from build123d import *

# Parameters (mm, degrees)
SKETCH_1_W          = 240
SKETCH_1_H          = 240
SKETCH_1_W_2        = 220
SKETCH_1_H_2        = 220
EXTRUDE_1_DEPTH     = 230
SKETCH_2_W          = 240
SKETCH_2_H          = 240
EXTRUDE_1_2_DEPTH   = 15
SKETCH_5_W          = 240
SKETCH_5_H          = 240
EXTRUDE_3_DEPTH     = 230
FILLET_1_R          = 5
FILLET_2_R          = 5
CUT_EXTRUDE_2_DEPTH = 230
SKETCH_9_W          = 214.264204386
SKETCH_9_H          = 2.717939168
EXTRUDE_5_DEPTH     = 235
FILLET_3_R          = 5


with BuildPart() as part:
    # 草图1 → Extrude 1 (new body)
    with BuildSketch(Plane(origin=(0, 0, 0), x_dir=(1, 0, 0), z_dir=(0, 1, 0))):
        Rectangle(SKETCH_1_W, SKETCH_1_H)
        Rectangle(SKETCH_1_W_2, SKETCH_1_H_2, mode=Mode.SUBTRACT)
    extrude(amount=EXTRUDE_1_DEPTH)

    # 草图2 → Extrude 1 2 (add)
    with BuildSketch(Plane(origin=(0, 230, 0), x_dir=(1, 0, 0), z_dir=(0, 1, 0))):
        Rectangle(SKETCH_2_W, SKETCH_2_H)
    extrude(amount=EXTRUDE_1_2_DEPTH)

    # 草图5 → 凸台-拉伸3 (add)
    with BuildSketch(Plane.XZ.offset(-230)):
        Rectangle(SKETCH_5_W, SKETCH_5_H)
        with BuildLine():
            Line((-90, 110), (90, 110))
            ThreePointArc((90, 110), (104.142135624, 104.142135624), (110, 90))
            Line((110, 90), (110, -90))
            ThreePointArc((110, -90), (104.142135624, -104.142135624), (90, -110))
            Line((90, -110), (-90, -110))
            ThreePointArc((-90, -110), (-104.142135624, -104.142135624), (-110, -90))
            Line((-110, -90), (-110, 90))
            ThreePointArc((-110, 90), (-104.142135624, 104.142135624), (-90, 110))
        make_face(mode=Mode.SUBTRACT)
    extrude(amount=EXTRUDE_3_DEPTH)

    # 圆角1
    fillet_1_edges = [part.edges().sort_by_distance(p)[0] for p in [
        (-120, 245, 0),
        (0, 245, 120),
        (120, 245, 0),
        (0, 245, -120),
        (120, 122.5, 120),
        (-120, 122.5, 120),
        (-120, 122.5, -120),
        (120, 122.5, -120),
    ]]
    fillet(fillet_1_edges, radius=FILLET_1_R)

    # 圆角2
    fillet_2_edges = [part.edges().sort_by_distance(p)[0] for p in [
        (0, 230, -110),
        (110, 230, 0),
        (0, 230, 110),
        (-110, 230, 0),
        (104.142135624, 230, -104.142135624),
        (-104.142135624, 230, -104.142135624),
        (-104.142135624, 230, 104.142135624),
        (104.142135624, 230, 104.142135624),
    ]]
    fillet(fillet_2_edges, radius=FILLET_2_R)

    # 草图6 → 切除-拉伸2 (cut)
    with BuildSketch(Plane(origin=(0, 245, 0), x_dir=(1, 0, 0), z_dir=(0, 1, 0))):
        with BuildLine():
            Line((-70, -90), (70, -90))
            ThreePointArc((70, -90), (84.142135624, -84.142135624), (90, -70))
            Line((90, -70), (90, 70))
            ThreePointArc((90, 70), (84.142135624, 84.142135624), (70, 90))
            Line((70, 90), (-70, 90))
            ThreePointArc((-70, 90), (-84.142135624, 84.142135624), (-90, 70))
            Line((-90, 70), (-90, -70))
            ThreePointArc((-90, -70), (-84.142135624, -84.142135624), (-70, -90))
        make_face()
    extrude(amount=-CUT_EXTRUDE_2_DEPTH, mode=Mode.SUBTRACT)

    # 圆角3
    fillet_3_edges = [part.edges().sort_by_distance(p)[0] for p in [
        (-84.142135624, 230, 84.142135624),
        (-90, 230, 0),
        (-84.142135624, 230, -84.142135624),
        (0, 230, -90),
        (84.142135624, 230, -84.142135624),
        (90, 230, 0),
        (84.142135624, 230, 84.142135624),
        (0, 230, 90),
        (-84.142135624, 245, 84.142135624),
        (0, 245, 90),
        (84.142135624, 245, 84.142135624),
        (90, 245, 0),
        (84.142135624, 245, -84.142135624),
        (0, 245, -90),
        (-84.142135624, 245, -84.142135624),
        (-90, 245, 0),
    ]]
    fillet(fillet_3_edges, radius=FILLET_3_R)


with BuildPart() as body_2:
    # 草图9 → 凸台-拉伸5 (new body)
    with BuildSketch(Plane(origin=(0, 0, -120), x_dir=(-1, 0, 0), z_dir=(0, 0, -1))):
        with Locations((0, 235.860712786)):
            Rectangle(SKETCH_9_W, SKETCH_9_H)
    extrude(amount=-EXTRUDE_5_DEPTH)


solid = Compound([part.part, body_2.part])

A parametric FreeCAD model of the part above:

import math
import FreeCAD as App
import Part
import Sketcher


def edges_at(feature, points):
    """Names of the edges that pass closest to the given points."""
    edges = feature.Shape.Edges
    near = lambda p: min(range(len(edges)), key=lambda i: edges[i].distToShape(Part.Vertex(*p))[0])
    return sorted({f"Edge{near(p) + 1}" for p in points})


def add_polygon(sketch, points):
    """Adds a closed chain of lines whose ends are joined by coincident constraints."""
    first, n = sketch.GeometryCount, len(points)
    for a, b in zip(points, points[1:] + points[:1]):
        sketch.addGeometry(Part.LineSegment(App.Vector(*a, 0), App.Vector(*b, 0)), False)
    for i in range(n):
        sketch.addConstraint(Sketcher.Constraint("Coincident", first + i, 2, first + (i + 1) % n, 1))

doc = App.newDocument("Part")
body = doc.addObject("PartDesign::Body", "Body")

sketch1 = body.newObject("Sketcher::SketchObject", "Sketch")
sketch1.AttachmentSupport = (doc.getObject("XZ_Plane"), [""])
sketch1.MapMode = "FlatFace"
add_polygon(sketch1, [(-120, -120), (-120, 120), (120, 120), (120, -120)])
add_polygon(sketch1, [(110, 110), (-110, 110), (-110, -110), (110, -110)])
sketch1.addConstraint([
    Sketcher.Constraint("Vertical", 0),
    Sketcher.Constraint("Horizontal", 1),
    Sketcher.Constraint("Vertical", 2),
    Sketcher.Constraint("Horizontal", 3),
    Sketcher.Constraint("Horizontal", 4),
    Sketcher.Constraint("Vertical", 5),
    Sketcher.Constraint("Horizontal", 6),
    Sketcher.Constraint("Vertical", 7),
    Sketcher.Constraint("Symmetric", 0, 2, 2, 2, -1, 1),
    Sketcher.Constraint("Symmetric", 4, 2, 6, 2, -1, 1),
    Sketcher.Constraint("Equal", 3, 0),
    Sketcher.Constraint("Equal", 6, 5),
    Sketcher.Constraint("DistanceX", 1, 1, 1, 2, 240.0),
    Sketcher.Constraint("DistanceX", 4, 2, 4, 1, 220.0),
])
pad1 = body.newObject("PartDesign::Pad", "Pad")
pad1.Profile = sketch1
pad1.Length = 230
pad1.Reversed = True

sketch2 = body.newObject("Sketcher::SketchObject", "Sketch001")
sketch2.AttachmentSupport = (doc.getObject("XZ_Plane"), [""])
sketch2.MapMode = "FlatFace"
sketch2.AttachmentOffset = App.Placement(App.Vector(0, 0, -230), App.Rotation())
add_polygon(sketch2, [(-120, -120), (-120, 120), (120, 120), (120, -120)])
sketch2.addConstraint([
    Sketcher.Constraint("Vertical", 0),
    Sketcher.Constraint("Horizontal", 1),
    Sketcher.Constraint("Vertical", 2),
    Sketcher.Constraint("Horizontal", 3),
    Sketcher.Constraint("Symmetric", 0, 2, 2, 2, -1, 1),
    Sketcher.Constraint("Equal", 3, 0),
    Sketcher.Constraint("DistanceX", 1, 1, 1, 2, 240.0),
])
pad2 = body.newObject("PartDesign::Pad", "Pad001")
pad2.Profile = sketch2
pad2.Length = 15
pad2.Reversed = True

sketch3 = body.newObject("Sketcher::SketchObject", "Sketch002")
sketch3.AttachmentSupport = (doc.getObject("XZ_Plane"), [""])
sketch3.MapMode = "FlatFace"
sketch3.AttachmentOffset = App.Placement(App.Vector(0, 0, -230), App.Rotation())
add_polygon(sketch3, [(-120, 120), (-120, -120), (120, -120), (120, 120)])
sketch3.addGeometry(Part.ArcOfCircle(Part.Circle(App.Vector(-90, 90, 0), App.Vector(0, 0, 1), 20), math.radians(90), math.radians(180)), False)
sketch3.addGeometry(Part.LineSegment(App.Vector(-90, 110, 0), App.Vector(90, 110, 0)), False)
sketch3.addGeometry(Part.ArcOfCircle(Part.Circle(App.Vector(90, 90, 0), App.Vector(0, 0, 1), 20), math.radians(0), math.radians(90)), False)
sketch3.addGeometry(Part.LineSegment(App.Vector(110, 90, 0), App.Vector(110, -90, 0)), False)
sketch3.addGeometry(Part.ArcOfCircle(Part.Circle(App.Vector(90, -90, 0), App.Vector(0, 0, 1), 20), math.radians(-90), math.radians(0)), False)
sketch3.addGeometry(Part.LineSegment(App.Vector(90, -110, 0), App.Vector(-90, -110, 0)), False)
sketch3.addGeometry(Part.ArcOfCircle(Part.Circle(App.Vector(-90, -90, 0), App.Vector(0, 0, 1), 20), math.radians(180), math.radians(270)), False)
sketch3.addGeometry(Part.LineSegment(App.Vector(-110, -90, 0), App.Vector(-110, 90, 0)), False)
sketch3.addConstraint([
    Sketcher.Constraint("Tangent", 4, 1, 5, 1),
    Sketcher.Constraint("Tangent", 5, 2, 6, 2),
    Sketcher.Constraint("Tangent", 6, 1, 7, 1),
    Sketcher.Constraint("Tangent", 7, 2, 8, 2),
    Sketcher.Constraint("Tangent", 8, 1, 9, 1),
    Sketcher.Constraint("Tangent", 9, 2, 10, 2),
    Sketcher.Constraint("Tangent", 10, 1, 11, 1),
    Sketcher.Constraint("Tangent", 11, 2, 4, 2),
    Sketcher.Constraint("Vertical", 0),
    Sketcher.Constraint("Horizontal", 1),
    Sketcher.Constraint("Vertical", 2),
    Sketcher.Constraint("Horizontal", 3),
    Sketcher.Constraint("Horizontal", 5),
    Sketcher.Constraint("Vertical", 7),
    Sketcher.Constraint("Horizontal", 9),
    Sketcher.Constraint("Vertical", 11),
    Sketcher.Constraint("Equal", 4, 6),
    Sketcher.Constraint("Equal", 6, 8),
    Sketcher.Constraint("Equal", 8, 10),
    Sketcher.Constraint("Symmetric", 4, 3, 8, 3, -1, 1),
    Sketcher.Constraint("Symmetric", 0, 2, 2, 2, -1, 1),
    Sketcher.Constraint("Equal", 3, 0),
    Sketcher.Constraint("Equal", 9, 7),
    Sketcher.Constraint("Radius", 4, 20.0),
    Sketcher.Constraint("DistanceX", 1, 1, 1, 2, 240.0),
    Sketcher.Constraint("DistanceX", 5, 1, 5, 2, 180.0),
])
pad3 = body.newObject("PartDesign::Pad", "Pad002")
pad3.Profile = sketch3
pad3.Length = 230
doc.recompute()

fillet = body.newObject("PartDesign::Fillet", "Fillet")
fillet.Base = (pad3, edges_at(pad3, [
    (-120, 245, 0),
    (0, 245, 120),
    (120, 245, 0),
    (0, 245, -120),
    (120, 122.5, 120),
    (-120, 122.5, 120),
    (-120, 122.5, -120),
    (120, 122.5, -120),
]))
fillet.Radius = 5
doc.recompute()

fillet2 = body.newObject("PartDesign::Fillet", "Fillet001")
fillet2.Base = (fillet, edges_at(fillet, [
    (0, 230, -110),
    (110, 230, 0),
    (0, 230, 110),
    (-110, 230, 0),
    (104.142, 230, -104.142),
    (-104.142, 230, -104.142),
    (-104.142, 230, 104.142),
    (104.142, 230, 104.142),
]))
fillet2.Radius = 5

sketch4 = body.newObject("Sketcher::SketchObject", "Sketch003")
sketch4.AttachmentSupport = (doc.getObject("XZ_Plane"), [""])
sketch4.MapMode = "FlatFace"
sketch4.AttachmentOffset = App.Placement(App.Vector(0, 0, -245), App.Rotation())
sketch4.addGeometry([
    Part.LineSegment(App.Vector(-70, 90, 0), App.Vector(70, 90, 0)),
    Part.ArcOfCircle(Part.Circle(App.Vector(70, 70, 0), App.Vector(0, 0, 1), 20), math.radians(0), math.radians(90)),
    Part.LineSegment(App.Vector(90, 70, 0), App.Vector(90, -70, 0)),
    Part.ArcOfCircle(Part.Circle(App.Vector(70, -70, 0), App.Vector(0, 0, 1), 20), math.radians(-90), math.radians(0)),
    Part.LineSegment(App.Vector(70, -90, 0), App.Vector(-70, -90, 0)),
    Part.ArcOfCircle(Part.Circle(App.Vector(-70, -70, 0), App.Vector(0, 0, 1), 20), math.radians(180), math.radians(270)),
    Part.LineSegment(App.Vector(-90, -70, 0), App.Vector(-90, 70, 0)),
    Part.ArcOfCircle(Part.Circle(App.Vector(-70, 70, 0), App.Vector(0, 0, 1), 20), math.radians(90), math.radians(180)),
], False)
sketch4.addConstraint([
    Sketcher.Constraint("Tangent", 0, 2, 1, 2),
    Sketcher.Constraint("Tangent", 1, 1, 2, 1),
    Sketcher.Constraint("Tangent", 2, 2, 3, 2),
    Sketcher.Constraint("Tangent", 3, 1, 4, 1),
    Sketcher.Constraint("Tangent", 4, 2, 5, 2),
    Sketcher.Constraint("Tangent", 5, 1, 6, 1),
    Sketcher.Constraint("Tangent", 6, 2, 7, 2),
    Sketcher.Constraint("Tangent", 7, 1, 0, 1),
    Sketcher.Constraint("Horizontal", 0),
    Sketcher.Constraint("Vertical", 2),
    Sketcher.Constraint("Horizontal", 4),
    Sketcher.Constraint("Vertical", 6),
    Sketcher.Constraint("Equal", 1, 3),
    Sketcher.Constraint("Equal", 3, 5),
    Sketcher.Constraint("Equal", 5, 7),
    Sketcher.Constraint("Symmetric", 1, 3, 5, 3, -1, 1),
    Sketcher.Constraint("Equal", 4, 2),
    Sketcher.Constraint("Radius", 1, 20.0),
    Sketcher.Constraint("DistanceX", 0, 1, 0, 2, 140.0),
])
pocket1 = body.newObject("PartDesign::Pocket", "Pocket")
pocket1.Profile = sketch4
pocket1.Length = 230
pocket1.Reversed = True
doc.recompute()

fillet3 = body.newObject("PartDesign::Fillet", "Fillet002")
fillet3.Base = (pocket1, edges_at(pocket1, [
    (-84.142, 230, 84.142),
    (-90, 230, 0),
    (-84.142, 230, -84.142),
    (0, 230, -90),
    (84.142, 230, -84.142),
    (90, 230, 0),
    (84.142, 230, 84.142),
    (0, 230, 90),
    (-84.142, 245, 84.142),
    (0, 245, 90),
    (84.142, 245, 84.142),
    (90, 245, 0),
    (84.142, 245, -84.142),
    (0, 245, -90),
    (-84.142, 245, -84.142),
    (-90, 245, 0),
]))
fillet3.Radius = 5
body2 = doc.addObject("PartDesign::Body", "Body001")

sketch5 = body2.newObject("Sketcher::SketchObject", "Sketch004")
sketch5.AttachmentSupport = (doc.getObject("XY_Plane001"), [""])
sketch5.MapMode = "FlatFace"
sketch5.AttachmentOffset = App.Placement(App.Vector(0, 0, -120), App.Rotation())
add_polygon(sketch5, [(107.1, 237.2), (107.1, 234.5), (-107.1, 234.5), (-107.1, 237.2)])
sketch5.addConstraint([
    Sketcher.Constraint("Vertical", 0),
    Sketcher.Constraint("Horizontal", 1),
    Sketcher.Constraint("Vertical", 2),
    Sketcher.Constraint("Horizontal", 3),
    Sketcher.Constraint("DistanceY", 0, 2, 0, 1, 2.717939),
    Sketcher.Constraint("DistanceX", 1, 2, 1, 1, 214.264204),
    Sketcher.Constraint("DistanceX", -1, 1, 0, 2, 107.132102),
    Sketcher.Constraint("DistanceY", -1, 1, 0, 2, 234.501743),
])
pad4 = body2.newObject("PartDesign::Pad", "Pad003")
pad4.Profile = sketch5
pad4.Length = 235

doc.recompute()
